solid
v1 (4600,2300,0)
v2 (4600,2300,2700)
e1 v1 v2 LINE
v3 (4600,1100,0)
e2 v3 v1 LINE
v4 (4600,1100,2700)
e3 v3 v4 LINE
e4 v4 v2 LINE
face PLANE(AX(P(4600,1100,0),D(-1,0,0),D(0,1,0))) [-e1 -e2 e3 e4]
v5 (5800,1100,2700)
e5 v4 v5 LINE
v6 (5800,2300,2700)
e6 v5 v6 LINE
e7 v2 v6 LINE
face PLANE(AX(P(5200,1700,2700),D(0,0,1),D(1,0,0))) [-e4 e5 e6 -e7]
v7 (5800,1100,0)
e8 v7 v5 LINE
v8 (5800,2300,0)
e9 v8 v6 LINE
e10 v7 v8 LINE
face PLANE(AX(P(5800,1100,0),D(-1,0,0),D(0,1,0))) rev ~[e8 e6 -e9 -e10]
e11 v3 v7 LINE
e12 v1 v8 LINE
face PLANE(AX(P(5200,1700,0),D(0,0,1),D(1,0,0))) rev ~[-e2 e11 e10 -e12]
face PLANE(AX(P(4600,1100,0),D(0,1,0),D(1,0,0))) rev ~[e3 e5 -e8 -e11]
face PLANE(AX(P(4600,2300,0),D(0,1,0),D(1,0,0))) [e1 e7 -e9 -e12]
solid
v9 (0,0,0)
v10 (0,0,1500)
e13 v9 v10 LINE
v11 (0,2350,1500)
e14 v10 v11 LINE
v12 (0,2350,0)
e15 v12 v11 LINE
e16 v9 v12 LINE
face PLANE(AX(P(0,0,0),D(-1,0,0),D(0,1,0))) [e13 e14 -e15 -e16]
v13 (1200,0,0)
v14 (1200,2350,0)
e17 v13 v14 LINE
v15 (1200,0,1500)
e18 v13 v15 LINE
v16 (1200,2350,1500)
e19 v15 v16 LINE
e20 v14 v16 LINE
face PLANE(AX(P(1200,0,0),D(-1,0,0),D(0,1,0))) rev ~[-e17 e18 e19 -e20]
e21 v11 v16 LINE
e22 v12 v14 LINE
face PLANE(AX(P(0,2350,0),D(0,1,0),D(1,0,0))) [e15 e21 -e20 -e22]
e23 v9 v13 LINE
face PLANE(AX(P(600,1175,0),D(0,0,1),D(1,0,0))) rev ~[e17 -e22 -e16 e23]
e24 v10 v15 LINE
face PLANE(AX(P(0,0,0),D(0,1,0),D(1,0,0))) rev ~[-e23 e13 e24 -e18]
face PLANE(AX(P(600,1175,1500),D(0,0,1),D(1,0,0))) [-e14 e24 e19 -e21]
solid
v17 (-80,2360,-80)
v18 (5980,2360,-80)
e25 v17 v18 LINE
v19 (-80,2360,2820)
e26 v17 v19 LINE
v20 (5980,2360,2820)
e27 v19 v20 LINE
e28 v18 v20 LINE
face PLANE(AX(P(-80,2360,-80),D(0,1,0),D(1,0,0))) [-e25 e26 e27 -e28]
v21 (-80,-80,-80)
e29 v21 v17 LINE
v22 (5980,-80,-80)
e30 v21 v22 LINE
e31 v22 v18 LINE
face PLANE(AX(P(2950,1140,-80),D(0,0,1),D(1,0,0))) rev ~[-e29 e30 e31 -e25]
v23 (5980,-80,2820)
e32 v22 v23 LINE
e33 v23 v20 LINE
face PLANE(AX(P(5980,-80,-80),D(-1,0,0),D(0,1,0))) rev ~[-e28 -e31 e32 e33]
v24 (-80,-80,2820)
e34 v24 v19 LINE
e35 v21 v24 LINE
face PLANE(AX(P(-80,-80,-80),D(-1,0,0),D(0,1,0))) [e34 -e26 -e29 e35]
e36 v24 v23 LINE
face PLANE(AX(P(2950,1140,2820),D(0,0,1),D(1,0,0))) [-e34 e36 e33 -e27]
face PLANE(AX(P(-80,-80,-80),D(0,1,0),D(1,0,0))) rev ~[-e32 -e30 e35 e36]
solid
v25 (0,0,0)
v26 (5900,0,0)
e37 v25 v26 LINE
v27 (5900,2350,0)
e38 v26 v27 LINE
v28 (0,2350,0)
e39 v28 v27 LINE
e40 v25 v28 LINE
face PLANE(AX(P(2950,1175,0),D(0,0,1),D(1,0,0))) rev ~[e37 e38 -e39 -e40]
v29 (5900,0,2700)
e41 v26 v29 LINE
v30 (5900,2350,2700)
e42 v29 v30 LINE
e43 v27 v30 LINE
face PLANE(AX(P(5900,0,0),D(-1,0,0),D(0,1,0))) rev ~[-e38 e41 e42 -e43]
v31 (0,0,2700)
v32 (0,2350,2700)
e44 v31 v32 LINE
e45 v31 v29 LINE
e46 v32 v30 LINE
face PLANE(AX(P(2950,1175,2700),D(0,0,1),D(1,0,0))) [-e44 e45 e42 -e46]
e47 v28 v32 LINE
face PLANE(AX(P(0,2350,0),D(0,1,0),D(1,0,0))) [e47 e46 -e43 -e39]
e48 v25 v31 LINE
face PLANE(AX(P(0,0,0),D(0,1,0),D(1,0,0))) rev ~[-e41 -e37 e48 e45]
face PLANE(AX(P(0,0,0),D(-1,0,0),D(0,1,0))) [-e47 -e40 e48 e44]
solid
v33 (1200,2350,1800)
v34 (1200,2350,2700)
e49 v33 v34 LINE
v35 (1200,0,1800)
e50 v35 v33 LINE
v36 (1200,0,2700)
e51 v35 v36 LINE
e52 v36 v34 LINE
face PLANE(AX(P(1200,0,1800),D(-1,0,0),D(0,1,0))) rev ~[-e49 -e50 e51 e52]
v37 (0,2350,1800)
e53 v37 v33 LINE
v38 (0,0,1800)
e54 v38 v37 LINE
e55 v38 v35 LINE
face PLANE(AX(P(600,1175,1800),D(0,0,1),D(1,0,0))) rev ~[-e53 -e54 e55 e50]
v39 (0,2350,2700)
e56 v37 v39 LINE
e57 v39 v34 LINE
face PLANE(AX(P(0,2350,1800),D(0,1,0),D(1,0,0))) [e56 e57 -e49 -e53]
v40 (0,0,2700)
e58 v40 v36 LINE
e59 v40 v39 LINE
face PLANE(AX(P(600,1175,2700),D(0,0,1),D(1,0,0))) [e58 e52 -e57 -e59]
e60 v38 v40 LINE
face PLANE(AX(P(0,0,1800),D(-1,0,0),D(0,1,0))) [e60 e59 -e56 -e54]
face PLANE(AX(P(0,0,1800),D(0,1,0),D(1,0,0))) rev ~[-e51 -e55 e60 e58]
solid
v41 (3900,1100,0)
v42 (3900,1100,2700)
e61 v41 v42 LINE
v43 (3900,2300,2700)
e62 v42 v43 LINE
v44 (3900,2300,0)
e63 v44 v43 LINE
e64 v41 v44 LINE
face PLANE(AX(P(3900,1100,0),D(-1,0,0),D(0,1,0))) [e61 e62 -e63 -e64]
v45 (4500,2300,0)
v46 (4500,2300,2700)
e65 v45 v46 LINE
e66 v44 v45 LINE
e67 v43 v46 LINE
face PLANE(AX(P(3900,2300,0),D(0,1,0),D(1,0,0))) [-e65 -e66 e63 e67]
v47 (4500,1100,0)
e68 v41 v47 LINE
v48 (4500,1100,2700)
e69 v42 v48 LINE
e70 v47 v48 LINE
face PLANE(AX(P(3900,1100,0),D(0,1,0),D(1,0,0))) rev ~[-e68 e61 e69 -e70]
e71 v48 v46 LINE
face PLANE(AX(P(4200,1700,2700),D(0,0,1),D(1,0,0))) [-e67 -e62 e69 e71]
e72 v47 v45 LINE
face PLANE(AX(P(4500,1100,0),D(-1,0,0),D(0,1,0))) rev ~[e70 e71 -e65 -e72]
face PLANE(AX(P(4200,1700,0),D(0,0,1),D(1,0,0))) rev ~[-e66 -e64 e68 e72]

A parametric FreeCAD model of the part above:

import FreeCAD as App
import Part
import Sketcher

V = App.Vector
Q = App.Units.Quantity

doc = App.newDocument("Part")
body = doc.addObject("PartDesign::Body", "Body")

# Sketch on XY plane
sketch1 = doc.addObject("Sketcher::SketchObject", "Sketch")
body.addObject(sketch1)
sketch1.AttachmentSupport = (doc.XY_Plane, [""])
sketch1.MapMode = "FlatFace"
sketch1.AttachmentOffset = App.Placement(V(0, 0, -80), App.Rotation())
sketch1.addGeometry([
    Part.LineSegment(V(-80, 2360, 0), V(-80, -80, 0)),
    Part.LineSegment(V(-80, -80, 0), V(5980, -80, 0)),
    Part.LineSegment(V(5980, -80, 0), V(5980, 2360, 0)),
    Part.LineSegment(V(5980, 2360, 0), V(-80, 2360, 0)),
], False)
sketch1.addConstraint([
    Sketcher.Constraint("Coincident", 0, 2, 1, 1),
    Sketcher.Constraint("Coincident", 1, 2, 2, 1),
    Sketcher.Constraint("Coincident", 2, 2, 3, 1),
    Sketcher.Constraint("Coincident", 3, 2, 0, 1),
    Sketcher.Constraint("Vertical", 0),
    Sketcher.Constraint("Horizontal", 1),
    Sketcher.Constraint("Vertical", 2),
    Sketcher.Constraint("Horizontal", 3),
    Sketcher.Constraint("DistanceX", 1, 1, 1, 2, Q("6060 mm")),
    Sketcher.Constraint("DistanceY", 0, 2, 0, 1, Q("2440 mm")),
    Sketcher.Constraint("DistanceX", 0, 2, -1, 1, Q("80 mm")),
    Sketcher.Constraint("DistanceY", 0, 2, -1, 1, Q("80 mm")),
])
pad1 = doc.addObject("PartDesign::Pad", "Pad")
body.addObject(pad1)
pad1.Profile = sketch1
pad1.Length = 2900
body2 = doc.addObject("PartDesign::Body", "Body001")

# Sketch on XY plane
sketch2 = doc.addObject("Sketcher::SketchObject", "Sketch001")
body2.addObject(sketch2)
sketch2.AttachmentSupport = (doc.getObject("XY_Plane001"), [""])
sketch2.MapMode = "FlatFace"
sketch2.addGeometry([
    Part.LineSegment(V(0, 2350, 0), V(0, 0, 0)),
    Part.LineSegment(V(0, 0, 0), V(5900, 0, 0)),
    Part.LineSegment(V(5900, 0, 0), V(5900, 2350, 0)),
    Part.LineSegment(V(5900, 2350, 0), V(0, 2350, 0)),
], False)
sketch2.addConstraint([
    Sketcher.Constraint("Coincident", 0, 2, 1, 1),
    Sketcher.Constraint("Coincident", 1, 2, 2, 1),
    Sketcher.Constraint("Coincident", 2, 2, 3, 1),
    Sketcher.Constraint("Coincident", 3, 2, 0, 1),
    Sketcher.Constraint("Vertical", 0),
    Sketcher.Constraint("Horizontal", 1),
    Sketcher.Constraint("Vertical", 2),
    Sketcher.Constraint("Horizontal", 3),
    Sketcher.Constraint("Coincident", 0, 2, -1, 1),
    Sketcher.Constraint("DistanceX", 1, 1, 1, 2, Q("5900 mm")),
    Sketcher.Constraint("DistanceY", 0, 2, 0, 1, Q("2350 mm")),
])
pad2 = doc.addObject("PartDesign::Pad", "Pad001")
body2.addObject(pad2)
pad2.Profile = sketch2
pad2.Length = 2700
body3 = doc.addObject("PartDesign::Body", "Body002")

# Sketch on XY plane
sketch3 = doc.addObject("Sketcher::SketchObject", "Sketch002")
body3.addObject(sketch3)
sketch3.AttachmentSupport = (doc.getObject("XY_Plane002"), [""])
sketch3.MapMode = "FlatFace"
sketch3.AttachmentOffset = App.Placement(V(0, 0, 1800), App.Rotation())
sketch3.addGeometry([
    Part.LineSegment(V(0, 2350, 0), V(0, 0, 0)),
    Part.LineSegment(V(0, 0, 0), V(1200, 0, 0)),
    Part.LineSegment(V(1200, 0, 0), V(1200, 2350, 0)),
    Part.LineSegment(V(1200, 2350, 0), V(0, 2350, 0)),
], False)
sketch3.addConstraint([
    Sketcher.Constraint("Coincident", 0, 2, 1, 1),
    Sketcher.Constraint("Coincident", 1, 2, 2, 1),
    Sketcher.Constraint("Coincident", 2, 2, 3, 1),
    Sketcher.Constraint("Coincident", 3, 2, 0, 1),
    Sketcher.Constraint("Vertical", 0),
    Sketcher.Constraint("Horizontal", 1),
    Sketcher.Constraint("Vertical", 2),
    Sketcher.Constraint("Horizontal", 3),
    Sketcher.Constraint("Coincident", 0, 2, -1, 1),
    Sketcher.Constraint("DistanceX", 1, 1, 1, 2, Q("1200 mm")),
    Sketcher.Constraint("DistanceY", 0, 2, 0, 1, Q("2350 mm")),
])
pad3 = doc.addObject("PartDesign::Pad", "Pad002")
body3.addObject(pad3)
pad3.Profile = sketch3
pad3.Length = 900
body4 = doc.addObject("PartDesign::Body", "Body003")

# Sketch on XY plane
sketch4 = doc.addObject("Sketcher::SketchObject", "Sketch003")
body4.addObject(sketch4)
sketch4.AttachmentSupport = (doc.getObject("XY_Plane003"), [""])
sketch4.MapMode = "FlatFace"
sketch4.addGeometry([
    Part.LineSegment(V(0, 2350, 0), V(0, 0, 0)),
    Part.LineSegment(V(0, 0, 0), V(1200, 0, 0)),
    Part.LineSegment(V(1200, 0, 0), V(1200, 2350, 0)),
    Part.LineSegment(V(1200, 2350, 0), V(0, 2350, 0)),
], False)
sketch4.addConstraint([
    Sketcher.Constraint("Coincident", 0, 2, 1, 1),
    Sketcher.Constraint("Coincident", 1, 2, 2, 1),
    Sketcher.Constraint("Coincident", 2, 2, 3, 1),
    Sketcher.Constraint("Coincident", 3, 2, 0, 1),
    Sketcher.Constraint("Vertical", 0),
    Sketcher.Constraint("Horizontal", 1),
    Sketcher.Constraint("Vertical", 2),
    Sketcher.Constraint("Horizontal", 3),
    Sketcher.Constraint("Coincident", 0, 2, -1, 1),
    Sketcher.Constraint("DistanceX", 1, 1, 1, 2, Q("1200 mm")),
    Sketcher.Constraint("DistanceY", 0, 2, 0, 1, Q("2350 mm")),
])
pad4 = doc.addObject("PartDesign::Pad", "Pad003")
body4.addObject(pad4)
pad4.Profile = sketch4
pad4.Length = 1500
body5 = doc.addObject("PartDesign::Body", "Body004")

# Sketch on XY plane
sketch5 = doc.addObject("Sketcher::SketchObject", "Sketch004")
body5.addObject(sketch5)
sketch5.AttachmentSupport = (doc.getObject("XY_Plane004"), [""])
sketch5.MapMode = "FlatFace"
sketch5.addGeometry([
    Part.LineSegment(V(3900, 2300, 0), V(3900, 1100, 0)),
    Part.LineSegment(V(3900, 1100, 0), V(4500, 1100, 0)),
    Part.LineSegment(V(4500, 1100, 0), V(4500, 2300, 0)),
    Part.LineSegment(V(4500, 2300, 0), V(3900, 2300, 0)),
], False)
sketch5.addConstraint([
    Sketcher.Constraint("Coincident", 0, 2, 1, 1),
    Sketcher.Constraint("Coincident", 1, 2, 2, 1),
    Sketcher.Constraint("Coincident", 2, 2, 3, 1),
    Sketcher.Constraint("Coincident", 3, 2, 0, 1),
    Sketcher.Constraint("Vertical", 0),
    Sketcher.Constraint("Horizontal", 1),
    Sketcher.Constraint("Vertical", 2),
    Sketcher.Constraint("Horizontal", 3),
    Sketcher.Constraint("DistanceX", 1, 1, 1, 2, Q("600 mm")),
    Sketcher.Constraint("DistanceY", 0, 2, 0, 1, Q("1200 mm")),
    Sketcher.Constraint("DistanceX", -1, 1, 0, 2, Q("3900 mm")),
    Sketcher.Constraint("DistanceY", -1, 1, 0, 2, Q("1100 mm")),
])
pad5 = doc.addObject("PartDesign::Pad", "Pad004")
body5.addObject(pad5)
pad5.Profile = sketch5
pad5.Length = 2700
body6 = doc.addObject("PartDesign::Body", "Body005")

# Sketch on XY plane
sketch6 = doc.addObject("Sketcher::SketchObject", "Sketch005")
body6.addObject(sketch6)
sketch6.AttachmentSupport = (doc.getObject("XY_Plane005"), [""])
sketch6.MapMode = "FlatFace"
sketch6.addGeometry([
    Part.LineSegment(V(4600, 2300, 0), V(4600, 1100, 0)),
    Part.LineSegment(V(4600, 1100, 0), V(5800, 1100, 0)),
    Part.LineSegment(V(5800, 1100, 0), V(5800, 2300, 0)),
    Part.LineSegment(V(5800, 2300, 0), V(4600, 2300, 0)),
], False)
sketch6.addConstraint([
    Sketcher.Constraint("Coincident", 0, 2, 1, 1),
    Sketcher.Constraint("Coincident", 1, 2, 2, 1),
    Sketcher.Constraint("Coincident", 2, 2, 3, 1),
    Sketcher.Constraint("Coincident", 3, 2, 0, 1),
    Sketcher.Constraint("Vertical", 0),
    Sketcher.Constraint("Horizontal", 1),
    Sketcher.Constraint("Vertical", 2),
    Sketcher.Constraint("Horizontal", 3),
    Sketcher.Constraint("Equal", 3, 0),
    Sketcher.Constraint("DistanceX", 1, 1, 1, 2, Q("1200 mm")),
    Sketcher.Constraint("DistanceX", -1, 1, 0, 2, Q("4600 mm")),
    Sketcher.Constraint("DistanceY", -1, 1, 0, 2, Q("1100 mm")),
])
pad6 = doc.addObject("PartDesign::Pad", "Pad005")
body6.addObject(pad6)
pad6.Profile = sketch6
pad6.Length = 2700

doc.recompute()
